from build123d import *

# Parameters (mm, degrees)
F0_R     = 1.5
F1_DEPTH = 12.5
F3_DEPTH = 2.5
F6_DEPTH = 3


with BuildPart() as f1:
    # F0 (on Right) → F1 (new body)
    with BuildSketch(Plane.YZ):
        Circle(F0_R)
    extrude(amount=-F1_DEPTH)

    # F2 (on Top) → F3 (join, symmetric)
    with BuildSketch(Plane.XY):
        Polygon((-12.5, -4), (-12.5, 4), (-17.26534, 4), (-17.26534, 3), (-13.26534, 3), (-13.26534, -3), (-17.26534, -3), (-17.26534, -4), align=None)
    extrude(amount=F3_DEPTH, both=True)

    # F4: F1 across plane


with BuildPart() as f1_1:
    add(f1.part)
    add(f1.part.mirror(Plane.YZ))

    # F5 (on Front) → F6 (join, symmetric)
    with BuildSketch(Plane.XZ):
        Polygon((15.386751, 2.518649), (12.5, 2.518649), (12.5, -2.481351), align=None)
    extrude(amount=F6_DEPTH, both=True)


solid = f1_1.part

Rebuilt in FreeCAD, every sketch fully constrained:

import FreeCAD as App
import Part
import Sketcher

V = App.Vector
Q = App.Units.Quantity

doc = App.newDocument("Part")
body = doc.addObject("PartDesign::Body", "Body")

# Sketch on YZ plane
sketch1 = body.newObject("Sketcher::SketchObject", "Sketch")
sketch1.AttachmentSupport = (doc.getObject("YZ_Plane"), [""])
sketch1.MapMode = "FlatFace"
sketch1.addGeometry(Part.Circle(V(0, 0, 0), V(0, 0, 1), 1.5), False)
sketch1.addConstraint([
    Sketcher.Constraint("Coincident", 0, 3, -1, 1),
    Sketcher.Constraint("Diameter", 0, Q("3 mm")),
])
pad1 = body.newObject("PartDesign::Pad", "Pad")
pad1.Profile = sketch1
pad1.Length = 12.5
pad1.Reversed = True

# Sketch on XY plane
sketch2 = body.newObject("Sketcher::SketchObject", "Sketch001")
sketch2.AttachmentSupport = (doc.getObject("XY_Plane"), [""])
sketch2.MapMode = "FlatFace"
sketch2.addGeometry([
    Part.LineSegment(V(-12.5, -4, 0), V(-12.5, 4, 0)),  # 0
    Part.LineSegment(V(-12.5, 4, 0), V(-17.26534, 4, 0)),  # 1
    Part.LineSegment(V(-17.26534, 4, 0), V(-17.26534, 3, 0)),  # 2
    Part.LineSegment(V(-17.26534, 3, 0), V(-13.26534, 3, 0)),  # 3
    Part.LineSegment(V(-13.26534, 3, 0), V(-13.26534, -3, 0)),  # 4
    Part.LineSegment(V(-13.26534, -3, 0), V(-17.26534, -3, 0)),  # 5
    Part.LineSegment(V(-17.26534, -3, 0), V(-17.26534, -4, 0)),  # 6
    Part.LineSegment(V(-17.26534, -4, 0), V(-12.5, -4, 0)),  # 7
], False)
sketch2.addConstraint([
    Sketcher.Constraint("Coincident", 0, 2, 1, 1),
    Sketcher.Constraint("Coincident", 1, 2, 2, 1),
    Sketcher.Constraint("Coincident", 2, 2, 3, 1),
    Sketcher.Constraint("Coincident", 3, 2, 4, 1),
    Sketcher.Constraint("Coincident", 4, 2, 5, 1),
    Sketcher.Constraint("Coincident", 5, 2, 6, 1),
    Sketcher.Constraint("Coincident", 6, 2, 7, 1),
    Sketcher.Constraint("Coincident", 7, 2, 0, 1),
    Sketcher.Constraint("Vertical", 0),
    Sketcher.Constraint("Horizontal", 1),
    Sketcher.Constraint("Vertical", 2),
    Sketcher.Constraint("Horizontal", 3),
    Sketcher.Constraint("Vertical", 4),
    Sketcher.Constraint("Horizontal", 5),
    Sketcher.Constraint("Vertical", 6),
    Sketcher.Constraint("Horizontal", 7),
    Sketcher.Constraint("Symmetric", 2, 2, 5, 2, -1),
    Sketcher.Constraint("Equal", 2, 6),
    Sketcher.Constraint("DistanceX", 3, 1, 3, 2, Q("4 mm")),
    Sketcher.Constraint("DistanceY", 0, 1, 0, 2, Q("8 mm")),
    Sketcher.Constraint("DistanceY", 2, 2, 2, 1, Q("1 mm")),
    Sketcher.Constraint("DistanceX", 0, 2, -1, 1, Q("12.5 mm")),
    Sketcher.Constraint("DistanceX", 1, 2, 1, 1, Q("4.76534 mm")),
])
pad2 = body.newObject("PartDesign::Pad", "Pad001")
pad2.Profile = sketch2
pad2.Length = 5
pad2.Midplane = True
body2 = doc.addObject("PartDesign::Body", "Body001")
doc.recompute()

body2.BaseFeature = body
doc.recompute()

mirroring = doc.addObject("Part::Mirroring", "Mirroring")
mirroring.Source = body
mirroring.Base = V(0, 0, 0)
mirroring.Normal = V(1, 0, 0)
body3 = doc.addObject("PartDesign::Body", "Body002")
body3.BaseFeature = mirroring
boolean = body2.newObject("PartDesign::Boolean", "Boolean")
boolean.Type = "Fuse"
boolean.addObjects([body3])
doc.recompute()

# Sketch on XZ plane
sketch3 = body2.newObject("Sketcher::SketchObject", "Sketch002")
sketch3.AttachmentSupport = (doc.getObject("XZ_Plane001"), [""])
sketch3.MapMode = "FlatFace"
sketch3.addGeometry([
    Part.LineSegment(V(15.386751, 2.518649, 0), V(12.5, 2.518649, 0)),
    Part.LineSegment(V(12.5, 2.518649, 0), V(12.5, -2.481351, 0)),
    Part.LineSegment(V(12.5, -2.481351, 0), V(15.386751, 2.518649, 0)),
], False)
sketch3.addConstraint([
    Sketcher.Constraint("Coincident", 0, 2, 1, 1),
    Sketcher.Constraint("Coincident", 1, 2, 2, 1),
    Sketcher.Constraint("Coincident", 2, 2, 0, 1),
    Sketcher.Constraint("Horizontal", 0),
    Sketcher.Constraint("Vertical", 1),
    Sketcher.Constraint("DistanceY", 1, 2, 1, 1, Q("5 mm")),
    Sketcher.Constraint("Angle", 2, Q("60.000003 deg")),
    Sketcher.Constraint("DistanceX", -1, 1, 0, 2, Q("12.5 mm")),
    Sketcher.Constraint("DistanceY", -1, 1, 0, 2, Q("2.518649 mm")),
])
pad3 = body2.newObject("PartDesign::Pad", "Pad002")
pad3.Profile = sketch3
pad3.Length = 6
pad3.Midplane = True
mirroring.Visibility = False

doc.recompute()
